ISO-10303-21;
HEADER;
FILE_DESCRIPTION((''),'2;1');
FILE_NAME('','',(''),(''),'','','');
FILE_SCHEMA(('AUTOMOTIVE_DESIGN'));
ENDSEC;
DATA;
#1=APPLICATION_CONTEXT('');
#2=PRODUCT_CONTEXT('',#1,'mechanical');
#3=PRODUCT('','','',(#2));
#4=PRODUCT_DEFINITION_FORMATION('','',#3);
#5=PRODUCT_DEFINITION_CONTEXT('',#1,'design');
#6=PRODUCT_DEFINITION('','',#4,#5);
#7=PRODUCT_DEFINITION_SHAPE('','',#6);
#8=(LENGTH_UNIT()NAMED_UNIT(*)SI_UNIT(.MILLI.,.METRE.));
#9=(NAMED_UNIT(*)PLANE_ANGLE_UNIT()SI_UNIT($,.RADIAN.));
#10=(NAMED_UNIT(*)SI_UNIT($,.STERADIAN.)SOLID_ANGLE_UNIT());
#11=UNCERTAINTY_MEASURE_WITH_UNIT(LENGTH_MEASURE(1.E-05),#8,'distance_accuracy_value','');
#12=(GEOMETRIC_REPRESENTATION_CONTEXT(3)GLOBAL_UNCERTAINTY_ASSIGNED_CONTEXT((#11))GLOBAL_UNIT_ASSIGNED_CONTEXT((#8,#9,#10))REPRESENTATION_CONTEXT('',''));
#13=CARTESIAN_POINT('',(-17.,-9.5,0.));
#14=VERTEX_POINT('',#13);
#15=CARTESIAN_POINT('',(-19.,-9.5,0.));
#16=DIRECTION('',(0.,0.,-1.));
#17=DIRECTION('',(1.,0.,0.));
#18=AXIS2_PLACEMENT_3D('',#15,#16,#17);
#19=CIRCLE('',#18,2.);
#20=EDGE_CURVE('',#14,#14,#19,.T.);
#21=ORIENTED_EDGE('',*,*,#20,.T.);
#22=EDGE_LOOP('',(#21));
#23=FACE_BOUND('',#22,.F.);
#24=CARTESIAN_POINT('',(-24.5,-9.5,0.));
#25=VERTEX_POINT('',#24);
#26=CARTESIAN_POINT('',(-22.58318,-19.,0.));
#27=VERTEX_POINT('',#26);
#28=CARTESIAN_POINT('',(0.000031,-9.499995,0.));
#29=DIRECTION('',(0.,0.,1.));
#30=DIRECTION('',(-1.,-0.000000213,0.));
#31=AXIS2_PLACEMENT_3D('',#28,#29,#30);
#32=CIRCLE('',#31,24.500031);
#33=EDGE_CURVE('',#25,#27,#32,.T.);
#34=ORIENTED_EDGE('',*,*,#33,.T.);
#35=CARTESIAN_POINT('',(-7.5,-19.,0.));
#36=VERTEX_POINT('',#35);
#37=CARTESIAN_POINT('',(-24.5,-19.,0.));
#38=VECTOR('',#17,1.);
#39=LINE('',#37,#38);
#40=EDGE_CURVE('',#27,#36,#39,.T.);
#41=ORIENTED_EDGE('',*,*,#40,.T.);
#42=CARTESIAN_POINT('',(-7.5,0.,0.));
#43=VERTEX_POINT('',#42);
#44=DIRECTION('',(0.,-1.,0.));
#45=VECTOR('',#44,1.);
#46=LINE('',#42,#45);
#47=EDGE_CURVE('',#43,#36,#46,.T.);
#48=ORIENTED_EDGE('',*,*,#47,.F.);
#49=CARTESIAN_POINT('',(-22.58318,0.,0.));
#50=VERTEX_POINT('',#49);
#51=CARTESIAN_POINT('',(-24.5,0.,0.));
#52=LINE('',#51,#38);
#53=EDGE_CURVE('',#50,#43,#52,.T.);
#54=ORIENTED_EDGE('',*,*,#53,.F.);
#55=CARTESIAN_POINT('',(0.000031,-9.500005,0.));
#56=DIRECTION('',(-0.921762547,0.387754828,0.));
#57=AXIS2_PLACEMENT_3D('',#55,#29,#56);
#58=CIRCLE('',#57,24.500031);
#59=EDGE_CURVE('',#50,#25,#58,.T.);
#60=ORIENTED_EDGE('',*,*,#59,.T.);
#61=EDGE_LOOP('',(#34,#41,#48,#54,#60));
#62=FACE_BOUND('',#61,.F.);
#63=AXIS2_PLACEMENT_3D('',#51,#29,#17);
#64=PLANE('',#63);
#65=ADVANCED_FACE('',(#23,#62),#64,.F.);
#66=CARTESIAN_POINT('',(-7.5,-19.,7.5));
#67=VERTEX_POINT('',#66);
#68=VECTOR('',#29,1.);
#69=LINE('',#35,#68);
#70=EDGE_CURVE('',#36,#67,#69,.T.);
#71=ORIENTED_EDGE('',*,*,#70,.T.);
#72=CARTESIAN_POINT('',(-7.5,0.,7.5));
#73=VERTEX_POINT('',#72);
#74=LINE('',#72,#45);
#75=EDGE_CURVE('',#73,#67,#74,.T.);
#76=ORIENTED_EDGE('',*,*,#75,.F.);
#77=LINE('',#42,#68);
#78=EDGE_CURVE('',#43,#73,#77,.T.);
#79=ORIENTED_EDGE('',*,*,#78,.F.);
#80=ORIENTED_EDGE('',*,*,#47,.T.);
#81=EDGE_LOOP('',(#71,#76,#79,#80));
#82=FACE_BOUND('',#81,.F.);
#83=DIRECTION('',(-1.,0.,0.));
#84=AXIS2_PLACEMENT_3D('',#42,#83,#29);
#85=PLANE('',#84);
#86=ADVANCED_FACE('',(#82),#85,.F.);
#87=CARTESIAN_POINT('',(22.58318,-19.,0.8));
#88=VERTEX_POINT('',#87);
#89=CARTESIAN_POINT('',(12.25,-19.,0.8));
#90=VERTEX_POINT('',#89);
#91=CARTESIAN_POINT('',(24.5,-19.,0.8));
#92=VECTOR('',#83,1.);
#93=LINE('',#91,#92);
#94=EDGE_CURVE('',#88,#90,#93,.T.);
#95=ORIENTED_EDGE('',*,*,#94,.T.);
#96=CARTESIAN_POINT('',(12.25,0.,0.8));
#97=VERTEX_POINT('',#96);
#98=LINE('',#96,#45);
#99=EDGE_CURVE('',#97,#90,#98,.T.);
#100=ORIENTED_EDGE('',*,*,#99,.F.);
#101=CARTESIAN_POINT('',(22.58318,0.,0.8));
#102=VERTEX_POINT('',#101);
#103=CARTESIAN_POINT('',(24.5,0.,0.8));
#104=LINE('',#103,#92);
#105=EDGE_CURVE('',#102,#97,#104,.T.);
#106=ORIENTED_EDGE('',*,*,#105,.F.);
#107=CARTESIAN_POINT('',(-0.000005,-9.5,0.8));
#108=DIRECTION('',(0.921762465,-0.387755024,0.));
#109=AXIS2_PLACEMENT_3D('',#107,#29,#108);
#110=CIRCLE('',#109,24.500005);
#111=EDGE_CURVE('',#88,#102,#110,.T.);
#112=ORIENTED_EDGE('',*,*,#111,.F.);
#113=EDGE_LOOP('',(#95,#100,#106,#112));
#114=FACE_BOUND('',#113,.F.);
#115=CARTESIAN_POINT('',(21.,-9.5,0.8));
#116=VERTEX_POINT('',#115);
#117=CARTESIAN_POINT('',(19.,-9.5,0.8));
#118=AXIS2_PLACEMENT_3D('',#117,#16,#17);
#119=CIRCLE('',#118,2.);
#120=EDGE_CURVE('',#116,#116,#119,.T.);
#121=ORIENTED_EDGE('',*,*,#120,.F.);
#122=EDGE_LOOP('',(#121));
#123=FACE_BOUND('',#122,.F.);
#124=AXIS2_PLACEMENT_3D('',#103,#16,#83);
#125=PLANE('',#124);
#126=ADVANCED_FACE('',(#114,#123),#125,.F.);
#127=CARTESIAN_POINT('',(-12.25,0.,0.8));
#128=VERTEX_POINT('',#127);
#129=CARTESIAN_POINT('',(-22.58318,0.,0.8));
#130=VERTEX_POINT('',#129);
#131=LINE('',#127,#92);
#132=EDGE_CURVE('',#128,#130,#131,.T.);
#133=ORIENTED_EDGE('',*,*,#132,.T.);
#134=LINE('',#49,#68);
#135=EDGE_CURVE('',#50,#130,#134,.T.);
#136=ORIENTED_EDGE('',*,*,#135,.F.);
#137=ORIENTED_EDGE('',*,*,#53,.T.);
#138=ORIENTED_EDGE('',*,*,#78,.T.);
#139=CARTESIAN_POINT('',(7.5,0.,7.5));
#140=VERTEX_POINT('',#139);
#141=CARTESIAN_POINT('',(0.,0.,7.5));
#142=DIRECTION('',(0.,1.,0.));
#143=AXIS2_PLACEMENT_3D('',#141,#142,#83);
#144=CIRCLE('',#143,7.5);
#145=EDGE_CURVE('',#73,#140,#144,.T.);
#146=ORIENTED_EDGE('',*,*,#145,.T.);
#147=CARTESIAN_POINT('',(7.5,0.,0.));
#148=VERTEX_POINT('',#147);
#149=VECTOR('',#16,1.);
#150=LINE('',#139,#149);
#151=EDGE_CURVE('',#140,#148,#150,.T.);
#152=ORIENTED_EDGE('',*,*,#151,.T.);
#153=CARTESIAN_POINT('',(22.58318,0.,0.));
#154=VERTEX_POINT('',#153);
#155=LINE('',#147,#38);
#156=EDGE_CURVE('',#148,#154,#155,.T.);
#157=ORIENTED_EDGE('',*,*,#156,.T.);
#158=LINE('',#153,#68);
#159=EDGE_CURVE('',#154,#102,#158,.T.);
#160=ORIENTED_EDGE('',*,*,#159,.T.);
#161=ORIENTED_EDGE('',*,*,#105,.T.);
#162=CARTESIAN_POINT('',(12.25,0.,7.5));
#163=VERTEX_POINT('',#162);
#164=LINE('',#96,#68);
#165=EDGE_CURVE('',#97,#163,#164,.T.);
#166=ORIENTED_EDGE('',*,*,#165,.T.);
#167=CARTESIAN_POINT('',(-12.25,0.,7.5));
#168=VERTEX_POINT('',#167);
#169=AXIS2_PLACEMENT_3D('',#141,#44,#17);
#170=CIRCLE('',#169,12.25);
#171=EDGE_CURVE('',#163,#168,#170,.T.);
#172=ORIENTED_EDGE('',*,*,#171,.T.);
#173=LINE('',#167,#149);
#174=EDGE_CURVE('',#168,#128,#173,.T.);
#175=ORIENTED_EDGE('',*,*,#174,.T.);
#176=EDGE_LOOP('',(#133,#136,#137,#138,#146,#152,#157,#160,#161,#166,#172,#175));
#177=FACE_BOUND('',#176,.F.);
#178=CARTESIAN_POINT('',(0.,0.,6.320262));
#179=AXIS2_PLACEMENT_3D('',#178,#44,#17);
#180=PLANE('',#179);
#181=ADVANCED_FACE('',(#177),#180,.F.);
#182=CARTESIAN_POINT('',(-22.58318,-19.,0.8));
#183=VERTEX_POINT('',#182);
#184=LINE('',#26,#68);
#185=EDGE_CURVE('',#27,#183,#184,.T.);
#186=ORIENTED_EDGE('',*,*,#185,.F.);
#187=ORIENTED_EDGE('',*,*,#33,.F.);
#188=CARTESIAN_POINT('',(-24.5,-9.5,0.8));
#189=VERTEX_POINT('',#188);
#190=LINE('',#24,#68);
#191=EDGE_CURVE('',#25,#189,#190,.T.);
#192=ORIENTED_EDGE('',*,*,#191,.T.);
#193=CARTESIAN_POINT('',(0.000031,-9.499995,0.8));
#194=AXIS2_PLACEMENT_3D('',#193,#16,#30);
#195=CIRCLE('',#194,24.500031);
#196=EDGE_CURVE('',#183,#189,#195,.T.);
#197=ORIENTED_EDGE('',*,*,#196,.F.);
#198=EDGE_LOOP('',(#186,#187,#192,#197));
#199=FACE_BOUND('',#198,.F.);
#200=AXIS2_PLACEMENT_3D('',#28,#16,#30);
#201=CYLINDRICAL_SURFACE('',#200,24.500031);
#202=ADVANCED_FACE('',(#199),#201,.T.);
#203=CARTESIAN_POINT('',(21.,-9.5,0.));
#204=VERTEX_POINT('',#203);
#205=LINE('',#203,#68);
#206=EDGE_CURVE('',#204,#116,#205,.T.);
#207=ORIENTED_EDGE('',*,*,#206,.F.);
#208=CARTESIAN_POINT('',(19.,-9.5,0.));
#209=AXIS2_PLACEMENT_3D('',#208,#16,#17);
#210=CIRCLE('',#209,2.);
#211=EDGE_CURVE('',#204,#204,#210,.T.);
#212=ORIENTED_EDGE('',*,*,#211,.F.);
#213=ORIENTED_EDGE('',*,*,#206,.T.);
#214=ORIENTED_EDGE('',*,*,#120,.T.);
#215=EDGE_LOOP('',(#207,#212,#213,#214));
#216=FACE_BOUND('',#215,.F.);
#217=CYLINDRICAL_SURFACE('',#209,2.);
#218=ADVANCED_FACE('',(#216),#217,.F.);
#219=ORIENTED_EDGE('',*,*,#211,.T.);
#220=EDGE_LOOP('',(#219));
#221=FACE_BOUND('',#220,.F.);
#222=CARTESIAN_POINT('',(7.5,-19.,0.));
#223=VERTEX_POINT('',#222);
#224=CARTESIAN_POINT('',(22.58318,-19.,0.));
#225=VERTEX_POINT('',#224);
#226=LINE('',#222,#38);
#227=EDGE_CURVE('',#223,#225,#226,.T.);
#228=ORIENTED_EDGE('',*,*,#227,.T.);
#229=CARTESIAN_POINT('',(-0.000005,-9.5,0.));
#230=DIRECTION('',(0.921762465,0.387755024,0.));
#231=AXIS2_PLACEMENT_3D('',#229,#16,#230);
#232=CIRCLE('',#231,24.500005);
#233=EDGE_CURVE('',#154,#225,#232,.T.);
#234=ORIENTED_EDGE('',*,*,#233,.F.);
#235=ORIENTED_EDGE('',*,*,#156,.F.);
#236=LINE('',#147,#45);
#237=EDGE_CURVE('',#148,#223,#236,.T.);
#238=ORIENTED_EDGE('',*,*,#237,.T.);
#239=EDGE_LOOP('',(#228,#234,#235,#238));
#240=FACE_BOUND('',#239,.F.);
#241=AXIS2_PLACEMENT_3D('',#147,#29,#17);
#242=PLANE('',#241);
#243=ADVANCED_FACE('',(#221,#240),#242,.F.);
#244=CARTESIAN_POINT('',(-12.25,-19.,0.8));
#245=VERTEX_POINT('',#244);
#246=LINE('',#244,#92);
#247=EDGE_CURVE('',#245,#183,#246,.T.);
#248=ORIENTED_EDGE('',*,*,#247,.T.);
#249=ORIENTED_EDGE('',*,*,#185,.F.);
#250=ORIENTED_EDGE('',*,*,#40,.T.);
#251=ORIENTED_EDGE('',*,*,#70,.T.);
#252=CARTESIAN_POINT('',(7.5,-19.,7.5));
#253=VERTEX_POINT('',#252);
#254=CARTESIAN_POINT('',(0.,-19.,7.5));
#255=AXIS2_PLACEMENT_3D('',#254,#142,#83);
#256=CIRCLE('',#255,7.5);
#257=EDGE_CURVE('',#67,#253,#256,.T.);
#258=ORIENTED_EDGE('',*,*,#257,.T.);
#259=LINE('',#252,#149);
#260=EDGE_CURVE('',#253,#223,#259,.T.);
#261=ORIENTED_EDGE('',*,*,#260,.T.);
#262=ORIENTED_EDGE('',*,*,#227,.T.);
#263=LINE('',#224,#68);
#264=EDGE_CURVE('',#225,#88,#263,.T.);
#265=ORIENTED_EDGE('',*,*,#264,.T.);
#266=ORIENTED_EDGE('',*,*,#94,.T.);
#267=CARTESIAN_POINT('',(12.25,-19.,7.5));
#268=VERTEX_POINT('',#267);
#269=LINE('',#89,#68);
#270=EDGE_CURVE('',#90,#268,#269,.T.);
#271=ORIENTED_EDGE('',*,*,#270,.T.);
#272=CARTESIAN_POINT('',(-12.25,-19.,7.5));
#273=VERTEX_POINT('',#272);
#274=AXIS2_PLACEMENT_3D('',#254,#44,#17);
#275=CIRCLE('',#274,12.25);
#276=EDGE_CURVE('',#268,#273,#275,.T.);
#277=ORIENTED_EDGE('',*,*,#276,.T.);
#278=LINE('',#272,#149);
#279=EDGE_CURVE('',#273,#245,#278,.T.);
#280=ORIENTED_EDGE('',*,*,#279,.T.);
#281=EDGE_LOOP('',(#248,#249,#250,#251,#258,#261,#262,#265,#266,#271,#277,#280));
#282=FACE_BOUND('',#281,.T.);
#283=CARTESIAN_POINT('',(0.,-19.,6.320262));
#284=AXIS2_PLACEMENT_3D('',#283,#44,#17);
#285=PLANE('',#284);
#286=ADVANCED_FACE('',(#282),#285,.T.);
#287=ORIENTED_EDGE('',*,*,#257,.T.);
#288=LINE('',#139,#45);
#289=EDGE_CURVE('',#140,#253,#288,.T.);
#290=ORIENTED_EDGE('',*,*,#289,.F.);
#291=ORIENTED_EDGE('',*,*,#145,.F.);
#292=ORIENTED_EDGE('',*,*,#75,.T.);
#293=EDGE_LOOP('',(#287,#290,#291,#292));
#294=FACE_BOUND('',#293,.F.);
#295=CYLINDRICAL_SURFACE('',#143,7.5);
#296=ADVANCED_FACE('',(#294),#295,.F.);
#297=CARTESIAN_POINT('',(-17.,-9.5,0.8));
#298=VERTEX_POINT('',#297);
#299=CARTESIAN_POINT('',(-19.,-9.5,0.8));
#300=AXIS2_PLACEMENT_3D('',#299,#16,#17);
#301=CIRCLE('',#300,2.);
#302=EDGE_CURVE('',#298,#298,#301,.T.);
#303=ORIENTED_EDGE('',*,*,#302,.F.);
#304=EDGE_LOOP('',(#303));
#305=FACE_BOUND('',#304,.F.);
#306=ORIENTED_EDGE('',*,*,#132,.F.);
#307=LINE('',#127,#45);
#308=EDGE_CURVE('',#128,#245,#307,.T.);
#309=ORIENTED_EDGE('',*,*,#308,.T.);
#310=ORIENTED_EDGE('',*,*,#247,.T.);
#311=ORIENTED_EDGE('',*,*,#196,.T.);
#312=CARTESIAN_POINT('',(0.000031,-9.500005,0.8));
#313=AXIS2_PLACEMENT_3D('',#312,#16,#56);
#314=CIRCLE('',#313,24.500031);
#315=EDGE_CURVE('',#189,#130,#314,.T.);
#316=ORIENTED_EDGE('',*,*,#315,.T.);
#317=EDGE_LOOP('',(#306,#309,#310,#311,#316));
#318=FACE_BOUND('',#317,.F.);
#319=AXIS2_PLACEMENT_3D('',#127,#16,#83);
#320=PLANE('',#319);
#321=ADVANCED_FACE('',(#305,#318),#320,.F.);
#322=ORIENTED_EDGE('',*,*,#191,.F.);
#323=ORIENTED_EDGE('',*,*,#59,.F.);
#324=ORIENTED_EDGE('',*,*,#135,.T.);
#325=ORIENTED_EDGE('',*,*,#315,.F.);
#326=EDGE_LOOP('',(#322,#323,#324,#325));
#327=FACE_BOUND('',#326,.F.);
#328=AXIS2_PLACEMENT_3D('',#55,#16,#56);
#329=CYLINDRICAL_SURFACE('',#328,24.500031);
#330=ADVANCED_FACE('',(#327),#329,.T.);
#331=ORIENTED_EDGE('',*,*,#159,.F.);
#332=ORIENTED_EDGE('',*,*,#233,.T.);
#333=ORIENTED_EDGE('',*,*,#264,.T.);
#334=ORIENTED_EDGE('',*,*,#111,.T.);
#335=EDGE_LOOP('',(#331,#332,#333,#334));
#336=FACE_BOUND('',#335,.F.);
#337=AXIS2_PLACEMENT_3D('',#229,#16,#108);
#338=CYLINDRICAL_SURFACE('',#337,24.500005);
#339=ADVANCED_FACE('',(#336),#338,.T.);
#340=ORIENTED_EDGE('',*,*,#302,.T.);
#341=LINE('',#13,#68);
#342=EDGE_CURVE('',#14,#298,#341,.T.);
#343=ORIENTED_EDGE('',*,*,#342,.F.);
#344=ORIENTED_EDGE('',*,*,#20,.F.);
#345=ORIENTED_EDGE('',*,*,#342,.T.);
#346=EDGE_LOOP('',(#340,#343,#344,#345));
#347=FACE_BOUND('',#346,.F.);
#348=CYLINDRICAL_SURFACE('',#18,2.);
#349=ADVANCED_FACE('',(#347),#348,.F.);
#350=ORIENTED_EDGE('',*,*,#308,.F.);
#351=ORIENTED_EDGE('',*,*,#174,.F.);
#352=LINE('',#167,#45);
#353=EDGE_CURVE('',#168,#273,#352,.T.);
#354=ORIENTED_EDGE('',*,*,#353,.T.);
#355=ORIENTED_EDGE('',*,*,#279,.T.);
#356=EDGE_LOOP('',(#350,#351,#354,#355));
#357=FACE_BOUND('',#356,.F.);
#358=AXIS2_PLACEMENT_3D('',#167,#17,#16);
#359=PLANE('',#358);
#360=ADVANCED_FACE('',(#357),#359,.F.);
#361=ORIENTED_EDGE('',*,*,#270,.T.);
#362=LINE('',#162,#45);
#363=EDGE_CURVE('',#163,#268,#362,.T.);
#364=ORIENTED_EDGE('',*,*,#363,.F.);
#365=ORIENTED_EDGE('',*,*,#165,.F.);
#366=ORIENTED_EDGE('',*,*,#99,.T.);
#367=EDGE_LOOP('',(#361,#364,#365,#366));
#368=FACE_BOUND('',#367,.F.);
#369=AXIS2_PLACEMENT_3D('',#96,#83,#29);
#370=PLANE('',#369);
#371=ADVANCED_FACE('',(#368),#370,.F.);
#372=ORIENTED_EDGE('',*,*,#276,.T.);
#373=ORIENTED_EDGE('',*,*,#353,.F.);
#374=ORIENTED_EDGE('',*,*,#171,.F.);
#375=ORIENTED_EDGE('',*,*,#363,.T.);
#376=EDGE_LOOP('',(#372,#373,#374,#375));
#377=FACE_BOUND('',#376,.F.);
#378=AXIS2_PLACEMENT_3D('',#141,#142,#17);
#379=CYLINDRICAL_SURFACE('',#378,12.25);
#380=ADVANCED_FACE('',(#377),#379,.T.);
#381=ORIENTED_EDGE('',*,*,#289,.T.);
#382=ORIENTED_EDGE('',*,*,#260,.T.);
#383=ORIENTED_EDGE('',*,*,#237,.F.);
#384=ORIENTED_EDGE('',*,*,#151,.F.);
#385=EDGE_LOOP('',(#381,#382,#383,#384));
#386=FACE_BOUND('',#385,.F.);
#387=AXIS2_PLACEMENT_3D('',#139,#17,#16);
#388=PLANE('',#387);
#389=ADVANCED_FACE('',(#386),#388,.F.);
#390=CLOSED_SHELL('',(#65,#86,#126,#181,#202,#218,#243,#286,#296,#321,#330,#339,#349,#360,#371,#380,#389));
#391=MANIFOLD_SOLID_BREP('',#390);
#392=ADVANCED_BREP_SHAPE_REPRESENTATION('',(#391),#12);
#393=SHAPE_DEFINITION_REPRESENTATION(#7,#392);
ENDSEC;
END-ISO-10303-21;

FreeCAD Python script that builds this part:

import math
import FreeCAD as App
import Part
import Sketcher

doc = App.newDocument("Part")
body = doc.addObject("PartDesign::Body", "Body")

# Sketch on XZ plane
sketch1 = doc.addObject("Sketcher::SketchObject", "Sketch")
body.addObject(sketch1)
sketch1.AttachmentSupport = (doc.XZ_Plane, [""])
sketch1.MapMode = "FlatFace"
sketch1.addGeometry(Part.ArcOfCircle(Part.Circle(App.Vector(0, 7.5, 0), App.Vector(0, 0, 1), 7.5), math.radians(0), math.radians(180)), False)
sketch1.addGeometry(Part.LineSegment(App.Vector(7.5, 7.5, 0), App.Vector(7.5, 0, 0)), False)
sketch1.addGeometry(Part.LineSegment(App.Vector(7.5, 0, 0), App.Vector(24.5, 0, 0)), False)
sketch1.addGeometry(Part.LineSegment(App.Vector(24.5, 0, 0), App.Vector(24.5, 0.8, 0)), False)
sketch1.addGeometry(Part.LineSegment(App.Vector(24.5, 0.8, 0), App.Vector(12.25, 0.8, 0)), False)
sketch1.addGeometry(Part.LineSegment(App.Vector(12.25, 0.8, 0), App.Vector(12.25, 7.5, 0)), False)
sketch1.addGeometry(Part.ArcOfCircle(Part.Circle(App.Vector(0, 7.5, 0), App.Vector(0, 0, 1), 12.25), math.radians(0), math.radians(180)), False)
sketch1.addGeometry(Part.LineSegment(App.Vector(-12.25, 7.5, 0), App.Vector(-12.25, 0.8, 0)), False)
sketch1.addGeometry(Part.LineSegment(App.Vector(-12.25, 0.8, 0), App.Vector(-24.5, 0.8, 0)), False)
sketch1.addGeometry(Part.LineSegment(App.Vector(-24.5, 0.8, 0), App.Vector(-24.5, 0, 0)), False)
sketch1.addGeometry(Part.LineSegment(App.Vector(-24.5, 0, 0), App.Vector(-7.5, 0, 0)), False)
sketch1.addGeometry(Part.LineSegment(App.Vector(-7.5, 0, 0), App.Vector(-7.5, 7.5, 0)), False)
sketch1.addConstraint(Sketcher.Constraint("Tangent", 0, 1, 1, 1))
sketch1.addConstraint(Sketcher.Constraint("Coincident", 1, 2, 2, 1))
sketch1.addConstraint(Sketcher.Constraint("Coincident", 2, 2, 3, 1))
sketch1.addConstraint(Sketcher.Constraint("Coincident", 3, 2, 4, 1))
sketch1.addConstraint(Sketcher.Constraint("Coincident", 4, 2, 5, 1))
sketch1.addConstraint(Sketcher.Constraint("Tangent", 5, 2, 6, 1))
sketch1.addConstraint(Sketcher.Constraint("Tangent", 6, 2, 7, 1))
sketch1.addConstraint(Sketcher.Constraint("Coincident", 7, 2, 8, 1))
sketch1.addConstraint(Sketcher.Constraint("Coincident", 8, 2, 9, 1))
sketch1.addConstraint(Sketcher.Constraint("Coincident", 9, 2, 10, 1))
sketch1.addConstraint(Sketcher.Constraint("Coincident", 10, 2, 11, 1))
sketch1.addConstraint(Sketcher.Constraint("Tangent", 11, 2, 0, 2))
sketch1.addConstraint(Sketcher.Constraint("Vertical", 1))
sketch1.addConstraint(Sketcher.Constraint("Horizontal", 2))
sketch1.addConstraint(Sketcher.Constraint("Vertical", 3))
sketch1.addConstraint(Sketcher.Constraint("Horizontal", 4))
sketch1.addConstraint(Sketcher.Constraint("Vertical", 5))
sketch1.addConstraint(Sketcher.Constraint("Vertical", 7))
sketch1.addConstraint(Sketcher.Constraint("Horizontal", 8))
sketch1.addConstraint(Sketcher.Constraint("Vertical", 9))
sketch1.addConstraint(Sketcher.Constraint("Horizontal", 10))
sketch1.addConstraint(Sketcher.Constraint("Vertical", 11))
sketch1.addConstraint(Sketcher.Constraint("Coincident", 6, 3, 0, 3))
sketch1.addConstraint(Sketcher.Constraint("Symmetric", 2, 2, 9, 2, -1, 1))
sketch1.addConstraint(Sketcher.Constraint("Symmetric", 4, 2, 7, 2, -2))
sketch1.addConstraint(Sketcher.Constraint("PointOnObject", 1, 2, -1))
sketch1.addConstraint(Sketcher.Constraint("Radius", 0, 7.5))
sketch1.addConstraint(Sketcher.Constraint("DistanceX", 2, 1, 2, 2, 17.0))
sketch1.addConstraint(Sketcher.Constraint("Radius", 6, 12.25))
sketch1.addConstraint(Sketcher.Constraint("DistanceY", 1, 2, 1, 1, 7.5))
sketch1.addConstraint(Sketcher.Constraint("DistanceY", 3, 1, 3, 2, 0.8))
pad1 = doc.addObject("PartDesign::Pad", "Pad")
body.addObject(pad1)
pad1.Profile = sketch1
pad1.Length = 19

# Sketch on XY plane
sketch2 = doc.addObject("Sketcher::SketchObject", "Sketch001")
body.addObject(sketch2)
sketch2.AttachmentSupport = (doc.XY_Plane, [""])
sketch2.MapMode = "FlatFace"
sketch2.addGeometry(Part.Circle(App.Vector(-19, -9.5, 0), App.Vector(0, 0, 1), 2), False)
sketch2.addGeometry(Part.Circle(App.Vector(19, -9.5, 0), App.Vector(0, 0, 1), 2), False)
sketch2.addGeometry(Part.ArcOfCircle(Part.Circle(App.Vector(0.000031, -9.500005, 0), App.Vector(0, 0, 1), 24.500031), math.radians(157.18513), math.radians(179.999988)), False)
sketch2.addGeometry(Part.LineSegment(App.Vector(-24.5, -9.5, 0), App.Vector(-24.5, 0, 0)), False)
sketch2.addGeometry(Part.LineSegment(App.Vector(-24.5, 0, 0), App.Vector(-22.58318, 0, 0)), False)
sketch2.addGeometry(Part.ArcOfCircle(Part.Circle(App.Vector(0.000031, -9.499995, 0), App.Vector(0, 0, 1), 24.500031), math.radians(-179.999988), math.radians(-157.18513)), False)
sketch2.addGeometry(Part.LineSegment(App.Vector(-22.58318, -19, 0), App.Vector(-24.5, -19, 0)), False)
sketch2.addGeometry(Part.LineSegment(App.Vector(-24.5, -19, 0), App.Vector(-24.5, -9.5, 0)), False)
sketch2.addGeometry(Part.ArcOfCircle(Part.Circle(App.Vector(-0.000005, -9.5, 0), App.Vector(0, 0, 1), 24.500005), math.radians(-22.814882), math.radians(22.814882)), False)
sketch2.addGeometry(Part.LineSegment(App.Vector(22.58318, 0, 0), App.Vector(24.50018, 0, 0)), False)
sketch2.addGeometry(Part.LineSegment(App.Vector(24.50018, 0, 0), App.Vector(24.50018, -19, 0)), False)
sketch2.addGeometry(Part.LineSegment(App.Vector(24.50018, -19, 0), App.Vector(22.58318, -19, 0)), False)
sketch2.addConstraint(Sketcher.Constraint("Tangent", 2, 2, 3, 1))
sketch2.addConstraint(Sketcher.Constraint("Coincident", 3, 2, 4, 1))
sketch2.addConstraint(Sketcher.Constraint("Coincident", 4, 2, 2, 1))
sketch2.addConstraint(Sketcher.Constraint("Coincident", 5, 2, 6, 1))
sketch2.addConstraint(Sketcher.Constraint("Coincident", 6, 2, 7, 1))
sketch2.addConstraint(Sketcher.Constraint("Tangent", 7, 2, 5, 1))
sketch2.addConstraint(Sketcher.Constraint("Coincident", 8, 2, 9, 1))
sketch2.addConstraint(Sketcher.Constraint("Coincident", 9, 2, 10, 1))
sketch2.addConstraint(Sketcher.Constraint("Coincident", 10, 2, 11, 1))
sketch2.addConstraint(Sketcher.Constraint("Coincident", 11, 2, 8, 1))
sketch2.addConstraint(Sketcher.Constraint("Vertical", 3))
sketch2.addConstraint(Sketcher.Constraint("Horizontal", 4))
sketch2.addConstraint(Sketcher.Constraint("Horizontal", 6))
sketch2.addConstraint(Sketcher.Constraint("Vertical", 7))
sketch2.addConstraint(Sketcher.Constraint("Horizontal", 9))
sketch2.addConstraint(Sketcher.Constraint("Vertical", 10))
sketch2.addConstraint(Sketcher.Constraint("Horizontal", 11))
sketch2.addConstraint(Sketcher.Constraint("Coincident", 7, 2, 2, 2))
sketch2.addConstraint(Sketcher.Constraint("Equal", 0, 1))
sketch2.addConstraint(Sketcher.Constraint("Equal", 2, 5))
sketch2.addConstraint(Sketcher.Constraint("Symmetric", 4, 2, 8, 2, -1, 1))
sketch2.addConstraint(Sketcher.Constraint("Symmetric", 0, 3, 1, 3, -2))
sketch2.addConstraint(Sketcher.Constraint("Symmetric", 5, 2, 11, 2, -2))
sketch2.addConstraint(Sketcher.Constraint("PointOnObject", 3, 2, -1))
sketch2.addConstraint(Sketcher.Constraint("Horizontal", 1, 3, 8, 3))
sketch2.addConstraint(Sketcher.Constraint("Vertical", 4, 2, 5, 2))
sketch2.addConstraint(Sketcher.Constraint("Diameter", 0, 4.0))
sketch2.addConstraint(Sketcher.Constraint("DistanceY", 10, 2, 10, 1, 19.0))
sketch2.addConstraint(Sketcher.Constraint("DistanceX", 0, 3, -1, 1, 19.0))
sketch2.addConstraint(Sketcher.Constraint("DistanceX", 2, 2, -1, 1, 24.5))
sketch2.addConstraint(Sketcher.Constraint("DistanceX", 9, 1, 9, 2, 1.917))
sketch2.addConstraint(Sketcher.Constraint("Radius", 2, 24.500031))
sketch2.addConstraint(Sketcher.Constraint("Radius", 8, 24.500005))
pocket1 = doc.addObject("PartDesign::Pocket", "Pocket")
body.addObject(pocket1)
pocket1.Profile = sketch2
pocket1.Length = 25
pocket1.Reversed = True

doc.recompute()
